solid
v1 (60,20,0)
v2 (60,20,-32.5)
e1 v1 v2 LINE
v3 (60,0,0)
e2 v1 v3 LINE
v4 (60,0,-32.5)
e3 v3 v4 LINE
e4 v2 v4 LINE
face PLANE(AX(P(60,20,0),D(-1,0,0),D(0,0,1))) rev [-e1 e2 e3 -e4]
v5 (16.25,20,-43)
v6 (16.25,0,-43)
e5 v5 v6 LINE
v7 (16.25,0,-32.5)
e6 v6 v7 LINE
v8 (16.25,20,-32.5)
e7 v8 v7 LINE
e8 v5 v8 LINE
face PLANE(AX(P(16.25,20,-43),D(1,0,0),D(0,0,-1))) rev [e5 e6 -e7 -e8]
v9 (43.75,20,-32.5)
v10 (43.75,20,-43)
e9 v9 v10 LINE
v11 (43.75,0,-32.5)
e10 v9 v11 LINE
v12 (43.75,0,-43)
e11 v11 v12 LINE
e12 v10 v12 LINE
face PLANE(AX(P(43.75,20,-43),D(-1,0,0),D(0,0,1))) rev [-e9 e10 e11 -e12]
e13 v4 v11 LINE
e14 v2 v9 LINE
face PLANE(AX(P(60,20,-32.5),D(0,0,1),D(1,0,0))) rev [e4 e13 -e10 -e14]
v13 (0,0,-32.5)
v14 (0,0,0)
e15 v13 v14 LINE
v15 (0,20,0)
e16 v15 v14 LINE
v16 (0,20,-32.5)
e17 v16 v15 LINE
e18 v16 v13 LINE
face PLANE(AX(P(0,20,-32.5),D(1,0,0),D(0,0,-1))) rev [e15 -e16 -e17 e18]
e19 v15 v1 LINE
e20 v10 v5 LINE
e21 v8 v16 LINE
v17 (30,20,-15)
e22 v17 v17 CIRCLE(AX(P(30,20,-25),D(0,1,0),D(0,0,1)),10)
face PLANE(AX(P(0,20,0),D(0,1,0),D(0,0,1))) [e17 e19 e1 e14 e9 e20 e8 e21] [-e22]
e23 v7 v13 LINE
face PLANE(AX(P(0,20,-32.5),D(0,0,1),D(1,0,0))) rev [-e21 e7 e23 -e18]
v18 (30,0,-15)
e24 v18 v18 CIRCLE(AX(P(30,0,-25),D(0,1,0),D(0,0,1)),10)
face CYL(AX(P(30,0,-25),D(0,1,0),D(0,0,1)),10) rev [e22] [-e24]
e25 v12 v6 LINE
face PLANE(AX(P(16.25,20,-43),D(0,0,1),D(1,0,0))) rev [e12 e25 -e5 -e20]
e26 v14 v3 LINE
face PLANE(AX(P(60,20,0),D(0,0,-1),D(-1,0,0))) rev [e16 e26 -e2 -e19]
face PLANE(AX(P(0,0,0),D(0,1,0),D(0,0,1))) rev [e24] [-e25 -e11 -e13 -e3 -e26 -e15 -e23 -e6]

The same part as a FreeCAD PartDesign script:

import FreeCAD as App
import Part
import Sketcher

V = App.Vector

doc = App.newDocument("Part")
body = doc.addObject("PartDesign::Body", "Body")

# Sketch on XZ plane
sketch1 = doc.addObject("Sketcher::SketchObject", "Sketch")
body.addObject(sketch1)
sketch1.AttachmentSupport = (doc.XZ_Plane, [""])
sketch1.MapMode = "FlatFace"
sketch1.addGeometry([
    Part.LineSegment(V(0, -32.5, 0), V(0, 0, 0)),  # 0
    Part.LineSegment(V(0, 0, 0), V(60, 0, 0)),  # 1
    Part.LineSegment(V(60, 0, 0), V(60, -32.5, 0)),  # 2
    Part.LineSegment(V(60, -32.5, 0), V(43.75, -32.5, 0)),  # 3
    Part.LineSegment(V(43.75, -32.5, 0), V(43.75, -43, 0)),  # 4
    Part.LineSegment(V(43.75, -43, 0), V(16.25, -43, 0)),  # 5
    Part.LineSegment(V(16.25, -43, 0), V(16.25, -32.5, 0)),  # 6
    Part.LineSegment(V(16.25, -32.5, 0), V(0, -32.5, 0)),  # 7
], False)
sketch1.addConstraint([
    Sketcher.Constraint("Coincident", 0, 2, 1, 1),
    Sketcher.Constraint("Coincident", 1, 2, 2, 1),
    Sketcher.Constraint("Coincident", 2, 2, 3, 1),
    Sketcher.Constraint("Coincident", 3, 2, 4, 1),
    Sketcher.Constraint("Coincident", 4, 2, 5, 1),
    Sketcher.Constraint("Coincident", 5, 2, 6, 1),
    Sketcher.Constraint("Coincident", 6, 2, 7, 1),
    Sketcher.Constraint("Coincident", 7, 2, 0, 1),
    Sketcher.Constraint("Vertical", 0),
    Sketcher.Constraint("Horizontal", 1),
    Sketcher.Constraint("Vertical", 2),
    Sketcher.Constraint("Horizontal", 3),
    Sketcher.Constraint("Vertical", 4),
    Sketcher.Constraint("Horizontal", 5),
    Sketcher.Constraint("Vertical", 6),
    Sketcher.Constraint("Horizontal", 7),
    Sketcher.Constraint("Coincident", 0, 2, -1, 1),
    Sketcher.Constraint("Horizontal", 3, 2, 6, 2),
    Sketcher.Constraint("Equal", 3, 7),
    Sketcher.Constraint("DistanceX", 1, 1, 1, 2, 60.0),
    Sketcher.Constraint("DistanceX", 5, 2, 5, 1, 27.5),
    Sketcher.Constraint("DistanceY", 0, 1, 0, 2, 32.5),
    Sketcher.Constraint("DistanceY", 4, 2, 4, 1, 10.5),
])
pad1 = doc.addObject("PartDesign::Pad", "Pad")
body.addObject(pad1)
pad1.Profile = sketch1
pad1.Length = 20
pad1.Reversed = True

# Sketch on XZ plane
sketch2 = doc.addObject("Sketcher::SketchObject", "Sketch001")
body.addObject(sketch2)
sketch2.AttachmentSupport = (doc.XZ_Plane, [""])
sketch2.MapMode = "FlatFace"
sketch2.AttachmentOffset = App.Placement(V(0, 0, -20), App.Rotation())
sketch2.addGeometry(Part.Circle(V(30, -25, 0), V(0, 0, 1), 10), False)
sketch2.addConstraint([
    Sketcher.Constraint("Diameter", 0, 20.0),
    Sketcher.Constraint("DistanceX", -1, 1, 0, 3, 30.0),
    Sketcher.Constraint("DistanceY", 0, 3, -1, 1, 25.0),
])
pocket1 = doc.addObject("PartDesign::Pocket", "Pocket")
body.addObject(pocket1)
pocket1.Profile = sketch2
pocket1.Type = "ThroughAll"
pocket1.Reversed = True

doc.recompute()
